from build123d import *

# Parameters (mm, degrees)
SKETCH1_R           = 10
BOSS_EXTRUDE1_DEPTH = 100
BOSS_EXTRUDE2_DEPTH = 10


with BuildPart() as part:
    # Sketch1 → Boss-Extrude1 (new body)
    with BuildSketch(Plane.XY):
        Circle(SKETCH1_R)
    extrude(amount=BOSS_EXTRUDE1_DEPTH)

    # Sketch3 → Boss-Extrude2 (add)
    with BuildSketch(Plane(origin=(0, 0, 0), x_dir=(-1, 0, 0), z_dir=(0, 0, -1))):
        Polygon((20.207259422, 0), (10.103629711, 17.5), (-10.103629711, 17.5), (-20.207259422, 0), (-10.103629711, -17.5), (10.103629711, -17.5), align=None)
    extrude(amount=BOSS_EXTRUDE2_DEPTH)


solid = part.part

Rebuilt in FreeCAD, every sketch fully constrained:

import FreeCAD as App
import Part
import Sketcher
Q = App.Units.Quantity


def add_polygon(sketch, points):
    """Adds a closed chain of lines whose ends are joined by coincident constraints."""
    first, n = sketch.GeometryCount, len(points)
    for a, b in zip(points, points[1:] + points[:1]):
        sketch.addGeometry(Part.LineSegment(App.Vector(*a, 0), App.Vector(*b, 0)), False)
    for i in range(n):
        sketch.addConstraint(Sketcher.Constraint("Coincident", first + i, 2, first + (i + 1) % n, 1))

doc = App.newDocument("Part")
body = doc.addObject("PartDesign::Body", "Body")

sketch1 = doc.addObject("Sketcher::SketchObject", "Sketch")
body.addObject(sketch1)
sketch1.AttachmentSupport = (doc.XY_Plane, [""])
sketch1.MapMode = "FlatFace"
sketch1.addGeometry(Part.Circle(App.Vector(0, 0, 0), App.Vector(0, 0, 1), 10), False)
sketch1.addConstraint([
    Sketcher.Constraint("Coincident", 0, 3, -1, 1),
    Sketcher.Constraint("Diameter", 0, 20.0),
])
pad1 = doc.addObject("PartDesign::Pad", "Pad")
body.addObject(pad1)
pad1.Profile = sketch1
pad1.Length = 100

sketch2 = doc.addObject("Sketcher::SketchObject", "Sketch001")
body.addObject(sketch2)
sketch2.AttachmentSupport = (doc.XY_Plane, [""])
sketch2.MapMode = "FlatFace"
add_polygon(sketch2, [(-20, 0), (-10, 18), (10, 18), (20, 0), (10, -18), (-10, -18)])
sketch2.addConstraint([
    Sketcher.Constraint("Horizontal", 1),
    Sketcher.Constraint("Horizontal", 4),
    Sketcher.Constraint("Symmetric", 0, 2, 3, 2, -1, 1),
    Sketcher.Constraint("Symmetric", 2, 2, 5, 2, -1, 1),
    Sketcher.Constraint("PointOnObject", 2, 2, -1),
    Sketcher.Constraint("Parallel", 2, 5),
    Sketcher.Constraint("Vertical", 1, 2, 3, 2),
    Sketcher.Constraint("Angle", 0, Q("60 deg")),
    Sketcher.Constraint("DistanceY", 3, 2, 1, 2, 35.0),
    Sketcher.Constraint("DistanceX", 1, 1, 1, 2, 20.207259),
])
pad2 = doc.addObject("PartDesign::Pad", "Pad001")
body.addObject(pad2)
pad2.Profile = sketch2
pad2.Length = 10
pad2.Reversed = True

doc.recompute()
